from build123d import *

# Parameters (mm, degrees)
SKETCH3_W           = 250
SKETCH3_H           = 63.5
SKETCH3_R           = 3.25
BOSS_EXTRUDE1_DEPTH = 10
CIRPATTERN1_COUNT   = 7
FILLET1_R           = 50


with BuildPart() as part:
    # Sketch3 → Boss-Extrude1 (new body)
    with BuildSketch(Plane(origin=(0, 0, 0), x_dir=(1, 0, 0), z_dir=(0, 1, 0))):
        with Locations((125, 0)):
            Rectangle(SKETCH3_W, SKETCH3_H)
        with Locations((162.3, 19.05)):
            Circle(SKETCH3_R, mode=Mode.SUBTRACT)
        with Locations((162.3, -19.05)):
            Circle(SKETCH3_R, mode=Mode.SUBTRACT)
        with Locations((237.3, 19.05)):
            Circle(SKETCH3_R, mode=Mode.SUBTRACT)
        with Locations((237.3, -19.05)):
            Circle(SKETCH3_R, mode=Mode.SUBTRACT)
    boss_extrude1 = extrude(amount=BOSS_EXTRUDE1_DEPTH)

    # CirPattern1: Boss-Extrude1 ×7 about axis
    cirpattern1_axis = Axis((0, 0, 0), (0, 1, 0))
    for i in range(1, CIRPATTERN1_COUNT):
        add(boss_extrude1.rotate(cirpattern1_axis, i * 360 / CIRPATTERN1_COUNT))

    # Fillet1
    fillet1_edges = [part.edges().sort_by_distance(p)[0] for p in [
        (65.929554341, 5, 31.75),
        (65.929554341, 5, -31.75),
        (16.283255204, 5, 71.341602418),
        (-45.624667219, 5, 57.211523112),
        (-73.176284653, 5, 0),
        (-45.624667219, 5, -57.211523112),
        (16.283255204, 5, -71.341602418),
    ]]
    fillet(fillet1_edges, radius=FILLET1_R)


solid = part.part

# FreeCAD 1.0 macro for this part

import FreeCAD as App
import Part
import Sketcher
from FreeCAD import Vector


def edges_at(feature, points):
    """Names of the edges that pass closest to the given points."""
    edges = feature.Shape.Edges
    near = lambda p: min(range(len(edges)), key=lambda i: edges[i].distToShape(Part.Vertex(*p))[0])
    return sorted({f"Edge{near(p) + 1}" for p in points})

doc = App.newDocument("Part")
params = doc.addObject("Spreadsheet::Sheet", "Params")
for row, (alias, value) in enumerate([
    ("sketch1_diameter", "6.5 mm"),
    ("sketch1_width", "250 mm"),
    ("sketch1_height", "63.5 mm"),
    ("pad1_length", "10 mm"),
    ("fillet_radius", "50 mm"),
], start=1):
    params.set(f"A{row}", alias)
    params.set(f"B{row}", "=" + value)
    params.setAlias(f"B{row}", alias)

body = doc.addObject("PartDesign::Body", "Body")

# Sketch on XZ plane
sketch1 = body.newObject("Sketcher::SketchObject", "Sketch")
sketch1.AttachmentSupport = (doc.getObject("XZ_Plane"), [""])
sketch1.MapMode = "FlatFace"
sketch1.addGeometry([
    Part.LineSegment(Vector(0, -31.8, 0), Vector(0, 31.8, 0)),  # 0
    Part.LineSegment(Vector(0, 31.8, 0), Vector(250, 31.8, 0)),  # 1
    Part.LineSegment(Vector(250, 31.8, 0), Vector(250, -31.8, 0)),  # 2
    Part.LineSegment(Vector(250, -31.8, 0), Vector(0, -31.8, 0)),  # 3
    Part.Circle(Vector(162.3, 19.1, 0), Vector(0, 0, 1), 3.2),  # 4
    Part.Circle(Vector(237.3, 19.1, 0), Vector(0, 0, 1), 3.2),  # 5
    Part.Circle(Vector(162.3, -19.1, 0), Vector(0, 0, 1), 3.2),  # 6
    Part.Circle(Vector(237.3, -19.1, 0), Vector(0, 0, 1), 3.2),  # 7
], False)
sketch1.addConstraint([
    Sketcher.Constraint("Coincident", 0, 2, 1, 1),
    Sketcher.Constraint("Coincident", 1, 2, 2, 1),
    Sketcher.Constraint("Coincident", 2, 2, 3, 1),
    Sketcher.Constraint("Coincident", 3, 2, 0, 1),
    Sketcher.Constraint("Vertical", 0),
    Sketcher.Constraint("Horizontal", 1),
    Sketcher.Constraint("Vertical", 2),
    Sketcher.Constraint("Horizontal", 3),
    Sketcher.Constraint("Equal", 4, 5),
    Sketcher.Constraint("Equal", 5, 6),
    Sketcher.Constraint("Equal", 6, 7),
    Sketcher.Constraint("Symmetric", 0, 2, 3, 2, -1, 1),
    Sketcher.Constraint("Symmetric", 4, 3, 6, 3, -1),
    Sketcher.Constraint("Symmetric", 5, 3, 7, 3, -1),
    Sketcher.Constraint("Horizontal", 4, 3, 5, 3),
    Sketcher.Constraint("Diameter", 4, 6.5),
    Sketcher.Constraint("DistanceX", 1, 1, 1, 2, 250.0),
    Sketcher.Constraint("DistanceY", 0, 1, 0, 2, 63.5),
    Sketcher.Constraint("DistanceX", 4, 3, 5, 3, 75.0),
    Sketcher.Constraint("DistanceX", -1, 1, 4, 3, 162.3),
    Sketcher.Constraint("DistanceY", 6, 3, 4, 3, 38.1),
])
sketch1.setExpression("Constraints[15]", "Params.sketch1_diameter")
sketch1.setExpression("Constraints[16]", "Params.sketch1_width")
sketch1.setExpression("Constraints[17]", "Params.sketch1_height")
pad1 = body.newObject("PartDesign::Pad", "Pad")
pad1.Profile = sketch1
pad1.setExpression("Length", "Params.pad1_length")
pad1.Reversed = True
doc.recompute()

polarpattern = body.newObject("PartDesign::PolarPattern", "PolarPattern")
polarpattern.Originals = [pad1]
polarpattern.Axis = (doc.getObject("Y_Axis"), [""])
polarpattern.Angle = 360
polarpattern.Occurrences = 7
body.Tip = polarpattern
doc.recompute()

fillet = body.newObject("PartDesign::Fillet", "Fillet")
fillet.Base = (polarpattern, edges_at(polarpattern, [
    (65.93, 5, 31.75),
    (65.93, 5, -31.75),
    (16.283, 5, 71.342),
    (-45.625, 5, 57.212),
    (-73.176, 5, 0),
    (-45.625, 5, -57.212),
    (16.283, 5, -71.342),
]))
fillet.setExpression("Radius", "Params.fillet_radius")

doc.recompute()
